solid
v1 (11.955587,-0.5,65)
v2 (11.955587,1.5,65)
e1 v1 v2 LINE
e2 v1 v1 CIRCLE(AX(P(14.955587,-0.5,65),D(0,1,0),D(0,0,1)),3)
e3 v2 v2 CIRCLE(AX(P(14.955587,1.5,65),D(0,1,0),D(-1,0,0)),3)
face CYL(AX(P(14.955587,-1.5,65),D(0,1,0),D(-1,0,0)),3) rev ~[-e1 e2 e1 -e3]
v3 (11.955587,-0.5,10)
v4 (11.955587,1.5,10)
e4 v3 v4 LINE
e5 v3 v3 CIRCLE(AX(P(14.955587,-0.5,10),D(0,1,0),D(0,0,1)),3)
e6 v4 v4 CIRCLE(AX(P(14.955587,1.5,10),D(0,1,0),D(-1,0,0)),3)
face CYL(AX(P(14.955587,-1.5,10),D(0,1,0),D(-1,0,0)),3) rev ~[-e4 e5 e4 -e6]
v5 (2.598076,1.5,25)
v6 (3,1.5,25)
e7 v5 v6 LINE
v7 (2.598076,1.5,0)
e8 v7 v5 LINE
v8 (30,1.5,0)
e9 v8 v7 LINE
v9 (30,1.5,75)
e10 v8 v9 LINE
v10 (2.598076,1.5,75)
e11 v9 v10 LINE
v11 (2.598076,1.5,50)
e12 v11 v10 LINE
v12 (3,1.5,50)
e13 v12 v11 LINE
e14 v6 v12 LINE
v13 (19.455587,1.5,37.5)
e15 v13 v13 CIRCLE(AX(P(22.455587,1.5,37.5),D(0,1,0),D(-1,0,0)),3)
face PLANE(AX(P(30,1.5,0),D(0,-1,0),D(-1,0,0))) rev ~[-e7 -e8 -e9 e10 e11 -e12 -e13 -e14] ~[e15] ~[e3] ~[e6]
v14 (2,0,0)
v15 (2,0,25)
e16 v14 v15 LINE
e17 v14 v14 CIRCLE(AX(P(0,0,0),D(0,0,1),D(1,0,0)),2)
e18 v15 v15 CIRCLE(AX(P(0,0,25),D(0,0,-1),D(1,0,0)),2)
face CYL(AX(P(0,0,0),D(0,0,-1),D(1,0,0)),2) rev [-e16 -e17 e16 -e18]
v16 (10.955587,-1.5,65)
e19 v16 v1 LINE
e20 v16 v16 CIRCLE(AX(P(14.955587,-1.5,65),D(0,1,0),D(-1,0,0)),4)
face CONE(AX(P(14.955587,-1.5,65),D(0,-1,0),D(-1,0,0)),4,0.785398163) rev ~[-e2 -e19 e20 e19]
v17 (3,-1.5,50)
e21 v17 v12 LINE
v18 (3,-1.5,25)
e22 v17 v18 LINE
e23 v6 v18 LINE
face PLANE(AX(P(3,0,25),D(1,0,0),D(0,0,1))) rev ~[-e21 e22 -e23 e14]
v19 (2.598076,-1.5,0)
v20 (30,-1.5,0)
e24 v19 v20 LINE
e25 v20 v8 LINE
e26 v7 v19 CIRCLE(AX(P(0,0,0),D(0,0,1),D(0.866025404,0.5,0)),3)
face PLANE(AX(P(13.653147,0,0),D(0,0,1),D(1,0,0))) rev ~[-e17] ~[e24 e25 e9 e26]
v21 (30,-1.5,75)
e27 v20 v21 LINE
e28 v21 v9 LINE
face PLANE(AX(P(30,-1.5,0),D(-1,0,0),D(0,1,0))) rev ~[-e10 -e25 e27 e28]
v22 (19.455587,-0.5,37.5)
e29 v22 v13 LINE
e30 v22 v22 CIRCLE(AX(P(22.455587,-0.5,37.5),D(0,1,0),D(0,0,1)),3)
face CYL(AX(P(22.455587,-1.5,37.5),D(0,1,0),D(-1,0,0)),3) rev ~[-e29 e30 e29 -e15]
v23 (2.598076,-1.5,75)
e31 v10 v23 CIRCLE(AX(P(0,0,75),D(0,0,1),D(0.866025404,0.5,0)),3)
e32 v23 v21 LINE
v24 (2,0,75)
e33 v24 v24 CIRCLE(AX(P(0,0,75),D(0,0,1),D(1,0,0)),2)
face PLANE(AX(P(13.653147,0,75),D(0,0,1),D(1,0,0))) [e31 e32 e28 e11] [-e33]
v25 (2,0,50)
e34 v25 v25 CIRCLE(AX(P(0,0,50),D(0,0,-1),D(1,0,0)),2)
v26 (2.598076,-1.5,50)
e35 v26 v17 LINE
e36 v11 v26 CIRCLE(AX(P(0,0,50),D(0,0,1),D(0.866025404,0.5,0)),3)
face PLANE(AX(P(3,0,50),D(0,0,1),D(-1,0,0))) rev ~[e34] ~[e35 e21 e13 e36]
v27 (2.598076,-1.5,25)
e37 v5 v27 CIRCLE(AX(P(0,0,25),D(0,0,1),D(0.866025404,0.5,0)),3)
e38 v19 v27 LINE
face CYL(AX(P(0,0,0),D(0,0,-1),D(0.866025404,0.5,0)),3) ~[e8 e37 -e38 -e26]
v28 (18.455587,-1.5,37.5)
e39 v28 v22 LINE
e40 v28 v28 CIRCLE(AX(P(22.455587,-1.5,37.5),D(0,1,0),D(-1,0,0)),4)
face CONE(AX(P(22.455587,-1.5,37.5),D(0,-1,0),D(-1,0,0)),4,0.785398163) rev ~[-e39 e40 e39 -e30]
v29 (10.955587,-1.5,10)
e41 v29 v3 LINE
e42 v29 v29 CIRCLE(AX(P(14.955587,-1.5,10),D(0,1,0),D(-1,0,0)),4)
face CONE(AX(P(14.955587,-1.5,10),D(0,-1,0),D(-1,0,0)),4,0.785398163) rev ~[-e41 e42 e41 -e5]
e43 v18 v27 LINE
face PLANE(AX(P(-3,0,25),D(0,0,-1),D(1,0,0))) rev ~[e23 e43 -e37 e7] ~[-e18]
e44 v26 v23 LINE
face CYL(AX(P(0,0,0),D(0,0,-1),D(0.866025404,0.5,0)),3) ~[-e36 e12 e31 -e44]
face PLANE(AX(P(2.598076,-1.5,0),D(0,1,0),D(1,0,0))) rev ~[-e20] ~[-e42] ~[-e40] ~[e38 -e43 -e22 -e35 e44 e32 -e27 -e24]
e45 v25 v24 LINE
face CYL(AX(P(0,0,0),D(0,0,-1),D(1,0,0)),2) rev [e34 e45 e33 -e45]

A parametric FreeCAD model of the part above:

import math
import FreeCAD as App
import Part
import Sketcher

V = App.Vector
Q = App.Units.Quantity

doc = App.newDocument("Part")
body = doc.addObject("PartDesign::Body", "Body")

sketch1 = body.newObject("Sketcher::SketchObject", "Sketch")
sketch1.AttachmentSupport = (doc.getObject("XY_Plane"), [""])
sketch1.MapMode = "FlatFace"
sketch1.addGeometry(Part.LineSegment(V(30, -1.5, 0), V(30, 1.5, 0)), False)
sketch1.addGeometry(Part.LineSegment(V(30, 1.5, 0), V(2.598076, 1.5, 0)), False)
sketch1.addGeometry(Part.ArcOfCircle(Part.Circle(V(0, 0, 0), V(0, 0, 1), 3), math.radians(30), math.radians(330)), False)
sketch1.addGeometry(Part.LineSegment(V(2.598076, -1.5, 0), V(30, -1.5, 0)), False)
sketch1.addGeometry(Part.Circle(V(0, 0, 0), V(0, 0, 1), 2), False)
sketch1.addConstraint(Sketcher.Constraint("Coincident", 0, 2, 1, 1))
sketch1.addConstraint(Sketcher.Constraint("Coincident", 1, 2, 2, 1))
sketch1.addConstraint(Sketcher.Constraint("Coincident", 2, 2, 3, 1))
sketch1.addConstraint(Sketcher.Constraint("Coincident", 3, 2, 0, 1))
sketch1.addConstraint(Sketcher.Constraint("Vertical", 0))
sketch1.addConstraint(Sketcher.Constraint("Horizontal", 1))
sketch1.addConstraint(Sketcher.Constraint("Horizontal", 3))
sketch1.addConstraint(Sketcher.Constraint("Coincident", 2, 3, -1, 1))
sketch1.addConstraint(Sketcher.Constraint("Coincident", 4, 3, -1, 1))
sketch1.addConstraint(Sketcher.Constraint("Vertical", 1, 2, 2, 2))
sketch1.addConstraint(Sketcher.Constraint("Diameter", 4, Q("4 mm")))
sketch1.addConstraint(Sketcher.Constraint("Radius", 2, Q("3 mm")))
sketch1.addConstraint(Sketcher.Constraint("DistanceY", 0, 1, 0, 2, Q("3 mm")))
sketch1.addConstraint(Sketcher.Constraint("DistanceX", -1, 1, 0, 2, Q("30 mm")))
pad1 = body.newObject("PartDesign::Pad", "Pad")
pad1.Profile = sketch1
pad1.Length = 75

sketch2 = body.newObject("Sketcher::SketchObject", "Sketch001")
sketch2.AttachmentSupport = (doc.getObject("XZ_Plane"), [""])
sketch2.MapMode = "FlatFace"
sketch2.addGeometry(Part.LineSegment(V(-3, 50, 0), V(-3, 25, 0)), False)
sketch2.addGeometry(Part.LineSegment(V(-3, 25, 0), V(3, 25, 0)), False)
sketch2.addGeometry(Part.LineSegment(V(3, 25, 0), V(3, 50, 0)), False)
sketch2.addGeometry(Part.LineSegment(V(3, 50, 0), V(-3, 50, 0)), False)
sketch2.addConstraint(Sketcher.Constraint("Coincident", 0, 2, 1, 1))
sketch2.addConstraint(Sketcher.Constraint("Coincident", 1, 2, 2, 1))
sketch2.addConstraint(Sketcher.Constraint("Coincident", 2, 2, 3, 1))
sketch2.addConstraint(Sketcher.Constraint("Coincident", 3, 2, 0, 1))
sketch2.addConstraint(Sketcher.Constraint("Vertical", 0))
sketch2.addConstraint(Sketcher.Constraint("Horizontal", 1))
sketch2.addConstraint(Sketcher.Constraint("Vertical", 2))
sketch2.addConstraint(Sketcher.Constraint("Horizontal", 3))
sketch2.addConstraint(Sketcher.Constraint("DistanceX", 1, 1, 1, 2, Q("6 mm")))
sketch2.addConstraint(Sketcher.Constraint("DistanceY", 0, 2, 0, 1, Q("25 mm")))
sketch2.addConstraint(Sketcher.Constraint("DistanceX", 0, 2, -1, 1, Q("3 mm")))
sketch2.addConstraint(Sketcher.Constraint("DistanceY", -1, 1, 0, 2, Q("25 mm")))
pocket1 = body.newObject("PartDesign::Pocket", "Pocket")
pocket1.Profile = sketch2
pocket1.Length = 25
pocket1.Midplane = True

sketch3 = body.newObject("Sketcher::SketchObject", "Sketch002")
sketch3.AttachmentSupport = (doc.getObject("XZ_Plane"), [""])
sketch3.MapMode = "FlatFace"
sketch3.AttachmentOffset = App.Placement(V(0, 0, 1.5), App.Rotation())
sketch3.addGeometry(Part.Circle(V(14.955587, 65, 0), V(0, 0, 1), 3), False)
sketch3.addGeometry(Part.Circle(V(22.455587, 37.5, 0), V(0, 0, 1), 3), False)
sketch3.addGeometry(Part.Circle(V(14.955587, 10, 0), V(0, 0, 1), 3), False)
sketch3.addConstraint(Sketcher.Constraint("Equal", 0, 1))
sketch3.addConstraint(Sketcher.Constraint("Equal", 1, 2))
sketch3.addConstraint(Sketcher.Constraint("Vertical", 0, 3, 2, 3))
sketch3.addConstraint(Sketcher.Constraint("Diameter", 0, Q("6 mm")))
sketch3.addConstraint(Sketcher.Constraint("DistanceY", -1, 1, 0, 3, Q("65 mm")))
sketch3.addConstraint(Sketcher.Constraint("DistanceY", -1, 1, 2, 3, Q("10 mm")))
sketch3.addConstraint(Sketcher.Constraint("DistanceY", -1, 1, 1, 3, Q("37.5 mm")))
sketch3.addConstraint(Sketcher.Constraint("DistanceX", 0, 3, 1, 3, Q("7.5 mm")))
sketch3.addConstraint(Sketcher.Constraint("DistanceX", -1, 1, 0, 3, Q("14.955587 mm")))
doc.recompute()
hole = body.newObject("PartDesign::Hole", "Hole")
hole.Profile = sketch3
hole.ThreadType = "None"
hole.Diameter = 6
hole.DepthType = "ThroughAll"
hole.HoleCutType = "Countersink"
hole.HoleCutDiameter = 8
hole.HoleCutCountersinkAngle = 90

doc.recompute()
